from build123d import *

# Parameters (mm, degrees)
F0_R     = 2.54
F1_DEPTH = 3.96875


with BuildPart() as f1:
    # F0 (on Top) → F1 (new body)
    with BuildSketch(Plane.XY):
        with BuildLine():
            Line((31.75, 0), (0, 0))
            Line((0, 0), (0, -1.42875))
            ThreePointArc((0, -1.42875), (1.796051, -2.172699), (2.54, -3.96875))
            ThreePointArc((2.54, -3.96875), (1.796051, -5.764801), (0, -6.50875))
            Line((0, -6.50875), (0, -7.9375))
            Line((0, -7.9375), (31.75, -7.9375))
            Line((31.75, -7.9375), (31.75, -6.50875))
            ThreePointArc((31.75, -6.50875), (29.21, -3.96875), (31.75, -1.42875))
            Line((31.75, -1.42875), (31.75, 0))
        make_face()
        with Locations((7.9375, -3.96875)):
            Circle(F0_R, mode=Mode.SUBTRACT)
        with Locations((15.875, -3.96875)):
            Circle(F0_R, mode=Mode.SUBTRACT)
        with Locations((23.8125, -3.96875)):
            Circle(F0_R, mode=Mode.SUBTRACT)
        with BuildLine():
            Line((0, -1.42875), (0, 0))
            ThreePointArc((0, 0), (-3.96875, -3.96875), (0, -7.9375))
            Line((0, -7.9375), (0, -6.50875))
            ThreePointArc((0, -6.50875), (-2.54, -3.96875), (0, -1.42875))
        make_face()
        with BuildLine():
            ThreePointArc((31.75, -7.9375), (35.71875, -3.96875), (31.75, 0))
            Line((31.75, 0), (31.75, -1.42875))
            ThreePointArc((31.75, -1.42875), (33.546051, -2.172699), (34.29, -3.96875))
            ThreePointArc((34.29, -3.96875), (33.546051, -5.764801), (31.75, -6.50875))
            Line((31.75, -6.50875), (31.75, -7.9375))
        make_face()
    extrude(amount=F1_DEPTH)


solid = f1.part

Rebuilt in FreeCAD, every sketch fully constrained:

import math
import FreeCAD as App
import Part
import Sketcher
Q = App.Units.Quantity

doc = App.newDocument("Part")
body = doc.addObject("PartDesign::Body", "Body")

# Sketch on XY plane
sketch1 = body.newObject("Sketcher::SketchObject", "Sketch")
sketch1.AttachmentSupport = (doc.getObject("XY_Plane"), [""])
sketch1.MapMode = "FlatFace"
sketch1.addGeometry([
    Part.LineSegment(App.Vector(31.8, 0, 0), App.Vector(0, 0, 0)),  # 0
    Part.ArcOfCircle(Part.Circle(App.Vector(0, -4, 0), App.Vector(0, 0, 1), 4), math.radians(90), math.radians(270)),  # 1
    Part.LineSegment(App.Vector(0, -7.9, 0), App.Vector(31.8, -7.9, 0)),  # 2
    Part.ArcOfCircle(Part.Circle(App.Vector(31.8, -4, 0), App.Vector(0, 0, 1), 4), math.radians(-90), math.radians(90)),  # 3
    Part.ArcOfCircle(Part.Circle(App.Vector(31.8, -4, 0), App.Vector(0, 0, 1), 2.5), math.radians(90), math.radians(270)),  # 4
    Part.ArcOfCircle(Part.Circle(App.Vector(31.7, -4, 0), App.Vector(0, 0, 1), 2.5), math.radians(0), math.radians(90)),  # 5
    Part.ArcOfCircle(Part.Circle(App.Vector(31.7, -4, 0), App.Vector(0, 0, 1), 2.5), math.radians(-90), math.radians(0)),  # 6
    Part.ArcOfCircle(Part.Circle(App.Vector(0, -4, 0), App.Vector(0, 0, 1), 2.5), math.radians(0), math.radians(90)),  # 7
    Part.ArcOfCircle(Part.Circle(App.Vector(0, -4, 0), App.Vector(0, 0, 1), 2.5), math.radians(-90), math.radians(0)),  # 8
    Part.ArcOfCircle(Part.Circle(App.Vector(0, -4, 0), App.Vector(0, 0, 1), 2.5), math.radians(90), math.radians(270)),  # 9
    Part.Circle(App.Vector(7.9, -4, 0), App.Vector(0, 0, 1), 2.5),  # 10
    Part.Circle(App.Vector(15.9, -4, 0), App.Vector(0, 0, 1), 2.5),  # 11
    Part.Circle(App.Vector(23.8, -4, 0), App.Vector(0, 0, 1), 2.5),  # 12
], False)
sketch1.addConstraint([
    Sketcher.Constraint("Tangent", 0, 2, 1, 1),
    Sketcher.Constraint("Tangent", 1, 2, 2, 1),
    Sketcher.Constraint("Tangent", 2, 2, 3, 1),
    Sketcher.Constraint("Tangent", 3, 2, 0, 1),
    Sketcher.Constraint("Tangent", 4, 1, 5, 2),
    Sketcher.Constraint("Tangent", 5, 1, 6, 2),
    Sketcher.Constraint("Tangent", 6, 1, 4, 2),
    Sketcher.Constraint("Tangent", 7, 1, 8, 2),
    Sketcher.Constraint("Tangent", 8, 1, 9, 2),
    Sketcher.Constraint("Tangent", 9, 1, 7, 2),
    Sketcher.Constraint("Horizontal", 0),
    Sketcher.Constraint("Horizontal", 2),
    Sketcher.Constraint("Coincident", 0, 2, -1, 1),
    Sketcher.Constraint("Coincident", 4, 3, 3, 3),
    Sketcher.Constraint("Coincident", 7, 3, 1, 3),
    Sketcher.Constraint("Equal", 6, 7),
    Sketcher.Constraint("Equal", 9, 10),
    Sketcher.Constraint("Equal", 10, 11),
    Sketcher.Constraint("Equal", 11, 12),
    Sketcher.Constraint("PointOnObject", 8, 1, -2),
    Sketcher.Constraint("PointOnObject", 9, 1, -2),
    Sketcher.Constraint("Horizontal", 9, 3, 10, 3),
    Sketcher.Constraint("Horizontal", 10, 3, 11, 3),
    Sketcher.Constraint("Horizontal", 11, 3, 12, 3),
    Sketcher.Constraint("Horizontal", 12, 3, 5, 1),
    Sketcher.Constraint("Horizontal", 5, 1, 7, 1),
    Sketcher.Constraint("Vertical", 3, 2, 4, 1),
    Sketcher.Constraint("Vertical", 4, 1, 6, 1),
    Sketcher.Constraint("Diameter", 10, Q("0.2 in")),
    Sketcher.Constraint("Radius", 1, Q("0.15625 in")),
    Sketcher.Constraint("DistanceX", 0, 2, 0, 1, Q("1.25 in")),
    Sketcher.Constraint("DistanceX", -1, 1, 10, 3, Q("0.3125 in")),
    Sketcher.Constraint("DistanceX", -1, 1, 11, 3, Q("0.625 in")),
    Sketcher.Constraint("DistanceX", -1, 1, 12, 3, Q("0.9375 in")),
])
pad1 = body.newObject("PartDesign::Pad", "Pad")
pad1.Profile = sketch1
pad1.Length = Q("0.15625 in")

doc.recompute()
